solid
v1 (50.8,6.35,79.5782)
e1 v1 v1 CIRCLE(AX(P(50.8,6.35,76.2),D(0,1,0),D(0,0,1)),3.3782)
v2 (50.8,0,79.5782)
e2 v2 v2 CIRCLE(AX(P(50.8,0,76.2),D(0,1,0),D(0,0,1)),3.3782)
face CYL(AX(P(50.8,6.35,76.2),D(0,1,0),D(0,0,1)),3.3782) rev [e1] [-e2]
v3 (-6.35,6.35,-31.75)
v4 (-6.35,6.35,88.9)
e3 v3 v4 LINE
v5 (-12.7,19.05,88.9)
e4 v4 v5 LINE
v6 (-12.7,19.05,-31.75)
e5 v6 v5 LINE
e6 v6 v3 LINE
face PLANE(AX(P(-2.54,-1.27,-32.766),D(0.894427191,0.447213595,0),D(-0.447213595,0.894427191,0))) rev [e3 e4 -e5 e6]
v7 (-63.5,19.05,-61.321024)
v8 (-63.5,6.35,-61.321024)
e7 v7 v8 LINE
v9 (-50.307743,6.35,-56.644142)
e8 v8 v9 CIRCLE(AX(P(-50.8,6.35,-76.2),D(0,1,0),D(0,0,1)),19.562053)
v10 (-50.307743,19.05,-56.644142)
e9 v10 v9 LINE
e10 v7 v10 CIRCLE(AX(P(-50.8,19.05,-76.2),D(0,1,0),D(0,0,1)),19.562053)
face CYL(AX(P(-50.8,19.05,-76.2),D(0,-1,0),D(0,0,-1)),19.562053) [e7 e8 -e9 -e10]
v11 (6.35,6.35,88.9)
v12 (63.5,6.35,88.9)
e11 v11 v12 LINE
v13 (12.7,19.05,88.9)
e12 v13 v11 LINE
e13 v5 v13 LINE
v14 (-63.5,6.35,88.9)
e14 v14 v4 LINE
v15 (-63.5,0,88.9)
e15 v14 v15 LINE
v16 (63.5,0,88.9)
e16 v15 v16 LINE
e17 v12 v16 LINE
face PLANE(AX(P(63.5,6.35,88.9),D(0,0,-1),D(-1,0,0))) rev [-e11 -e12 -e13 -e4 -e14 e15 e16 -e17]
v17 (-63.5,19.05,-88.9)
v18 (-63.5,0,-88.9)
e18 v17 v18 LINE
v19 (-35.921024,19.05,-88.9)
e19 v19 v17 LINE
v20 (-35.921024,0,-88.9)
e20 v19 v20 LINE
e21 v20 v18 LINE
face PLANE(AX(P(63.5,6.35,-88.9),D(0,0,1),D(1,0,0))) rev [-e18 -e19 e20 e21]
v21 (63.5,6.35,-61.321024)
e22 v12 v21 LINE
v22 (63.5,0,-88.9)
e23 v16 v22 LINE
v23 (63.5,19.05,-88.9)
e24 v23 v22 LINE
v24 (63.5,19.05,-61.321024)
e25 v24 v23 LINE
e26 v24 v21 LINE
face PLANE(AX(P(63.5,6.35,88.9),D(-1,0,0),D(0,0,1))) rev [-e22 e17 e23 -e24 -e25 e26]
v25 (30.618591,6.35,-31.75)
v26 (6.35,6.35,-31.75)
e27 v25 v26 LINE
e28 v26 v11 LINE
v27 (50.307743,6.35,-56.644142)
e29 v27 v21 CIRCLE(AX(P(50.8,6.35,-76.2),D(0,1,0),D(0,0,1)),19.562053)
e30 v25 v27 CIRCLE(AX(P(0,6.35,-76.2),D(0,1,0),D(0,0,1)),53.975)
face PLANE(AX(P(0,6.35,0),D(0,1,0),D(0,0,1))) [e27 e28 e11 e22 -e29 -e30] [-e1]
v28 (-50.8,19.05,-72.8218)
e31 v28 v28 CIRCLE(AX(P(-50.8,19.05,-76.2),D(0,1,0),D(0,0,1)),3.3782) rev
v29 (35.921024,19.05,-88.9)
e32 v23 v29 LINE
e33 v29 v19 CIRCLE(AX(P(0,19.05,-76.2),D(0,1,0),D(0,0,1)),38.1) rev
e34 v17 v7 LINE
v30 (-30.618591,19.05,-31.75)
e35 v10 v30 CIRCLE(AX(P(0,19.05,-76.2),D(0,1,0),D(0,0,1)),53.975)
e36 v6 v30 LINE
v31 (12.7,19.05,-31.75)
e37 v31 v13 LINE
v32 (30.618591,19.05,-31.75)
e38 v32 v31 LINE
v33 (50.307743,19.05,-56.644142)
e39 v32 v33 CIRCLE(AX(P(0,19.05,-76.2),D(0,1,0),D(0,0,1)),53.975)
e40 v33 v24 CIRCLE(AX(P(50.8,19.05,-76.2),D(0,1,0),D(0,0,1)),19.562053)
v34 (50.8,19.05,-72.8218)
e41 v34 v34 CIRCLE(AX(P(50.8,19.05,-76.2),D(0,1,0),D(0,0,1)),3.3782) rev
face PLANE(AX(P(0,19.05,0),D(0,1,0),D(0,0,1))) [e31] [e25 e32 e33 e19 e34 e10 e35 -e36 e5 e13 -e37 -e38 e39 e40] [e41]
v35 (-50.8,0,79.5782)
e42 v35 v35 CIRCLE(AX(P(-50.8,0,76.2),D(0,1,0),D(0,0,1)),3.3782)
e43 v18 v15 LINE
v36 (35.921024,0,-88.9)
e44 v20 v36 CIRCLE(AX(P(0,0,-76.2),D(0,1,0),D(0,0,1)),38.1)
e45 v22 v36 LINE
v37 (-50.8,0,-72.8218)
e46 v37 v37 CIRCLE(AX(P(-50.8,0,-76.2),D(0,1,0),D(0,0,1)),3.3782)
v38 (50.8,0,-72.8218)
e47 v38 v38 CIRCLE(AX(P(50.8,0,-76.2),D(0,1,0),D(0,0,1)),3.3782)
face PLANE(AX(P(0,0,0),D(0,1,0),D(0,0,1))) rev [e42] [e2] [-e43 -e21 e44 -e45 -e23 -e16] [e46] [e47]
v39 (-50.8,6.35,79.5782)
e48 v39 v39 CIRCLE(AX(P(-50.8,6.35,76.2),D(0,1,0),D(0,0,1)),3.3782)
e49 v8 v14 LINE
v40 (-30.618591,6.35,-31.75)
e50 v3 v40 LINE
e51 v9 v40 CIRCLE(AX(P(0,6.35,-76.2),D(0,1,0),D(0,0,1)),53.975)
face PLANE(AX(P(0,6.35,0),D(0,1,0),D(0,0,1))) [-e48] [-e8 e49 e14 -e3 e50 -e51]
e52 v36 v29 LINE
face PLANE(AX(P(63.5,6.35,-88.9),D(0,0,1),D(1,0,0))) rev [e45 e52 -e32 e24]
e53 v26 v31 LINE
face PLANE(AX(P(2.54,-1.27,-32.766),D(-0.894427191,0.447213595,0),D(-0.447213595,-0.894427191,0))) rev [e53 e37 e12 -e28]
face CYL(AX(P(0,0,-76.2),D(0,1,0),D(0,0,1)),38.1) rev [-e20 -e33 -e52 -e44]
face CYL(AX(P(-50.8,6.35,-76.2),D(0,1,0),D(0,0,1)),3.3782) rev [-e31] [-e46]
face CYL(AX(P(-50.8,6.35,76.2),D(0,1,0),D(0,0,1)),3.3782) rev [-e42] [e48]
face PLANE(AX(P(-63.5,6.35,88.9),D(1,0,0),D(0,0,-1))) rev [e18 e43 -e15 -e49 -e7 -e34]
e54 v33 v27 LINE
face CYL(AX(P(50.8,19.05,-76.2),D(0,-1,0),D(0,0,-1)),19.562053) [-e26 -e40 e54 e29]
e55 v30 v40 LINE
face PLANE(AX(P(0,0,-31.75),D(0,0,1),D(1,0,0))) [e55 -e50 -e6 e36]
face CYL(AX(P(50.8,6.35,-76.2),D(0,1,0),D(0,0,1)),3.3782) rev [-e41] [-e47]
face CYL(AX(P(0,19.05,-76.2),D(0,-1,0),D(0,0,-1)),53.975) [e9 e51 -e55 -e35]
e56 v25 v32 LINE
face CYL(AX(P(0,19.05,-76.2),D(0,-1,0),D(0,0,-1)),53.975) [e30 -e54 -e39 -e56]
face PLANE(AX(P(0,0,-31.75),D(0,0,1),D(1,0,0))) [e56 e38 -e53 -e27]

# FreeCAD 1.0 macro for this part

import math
import FreeCAD as App
import Part
import Sketcher
from FreeCAD import Vector
Q = App.Units.Quantity

doc = App.newDocument("Part")
body = doc.addObject("PartDesign::Body", "Body")

# Sketch on XZ plane
sketch1 = body.newObject("Sketcher::SketchObject", "Sketch")
sketch1.AttachmentSupport = (doc.getObject("XZ_Plane"), [""])
sketch1.MapMode = "FlatFace"
sketch1.addGeometry([
    Part.LineSegment(Vector(-64, -89, 0), Vector(-64, 89, 0)),
    Part.LineSegment(Vector(-64, 89, 0), Vector(64, 89, 0)),
    Part.LineSegment(Vector(64, 89, 0), Vector(64, -89, 0)),
    Part.LineSegment(Vector(64, -89, 0), Vector(-64, -89, 0)),
], False)
sketch1.addConstraint([
    Sketcher.Constraint("Coincident", 0, 2, 1, 1),
    Sketcher.Constraint("Coincident", 1, 2, 2, 1),
    Sketcher.Constraint("Coincident", 2, 2, 3, 1),
    Sketcher.Constraint("Coincident", 3, 2, 0, 1),
    Sketcher.Constraint("Vertical", 0),
    Sketcher.Constraint("Horizontal", 1),
    Sketcher.Constraint("Vertical", 2),
    Sketcher.Constraint("Horizontal", 3),
    Sketcher.Constraint("Symmetric", 0, 2, 2, 2, -1, 1),
    Sketcher.Constraint("DistanceX", 1, 1, 1, 2, Q("5 in")),
    Sketcher.Constraint("DistanceY", 0, 1, 0, 2, Q("7 in")),
])
pad1 = body.newObject("PartDesign::Pad", "Pad")
pad1.Profile = sketch1
pad1.Length = Q("0.25 in")
pad1.Reversed = True

# Sketch on XZ plane
sketch2 = body.newObject("Sketcher::SketchObject", "Sketch001")
sketch2.AttachmentSupport = (doc.getObject("XZ_Plane"), [""])
sketch2.MapMode = "FlatFace"
sketch2.AttachmentOffset = App.Placement(Vector(0, 0, -0.25 * 25.4), App.Rotation())
sketch2.addGeometry([
    Part.Circle(Vector(-50.8, -76.2, 0), Vector(0, 0, 1), 3.4),
    Part.Circle(Vector(50.8, 76.2, 0), Vector(0, 0, 1), 3.4),
    Part.Circle(Vector(50.8, -76.2, 0), Vector(0, 0, 1), 3.4),
    Part.Circle(Vector(-50.8, 76.2, 0), Vector(0, 0, 1), 3.4),
], False)
sketch2.addConstraint([
    Sketcher.Constraint("Equal", 0, 1),
    Sketcher.Constraint("Equal", 1, 2),
    Sketcher.Constraint("Equal", 2, 3),
    Sketcher.Constraint("Symmetric", 0, 3, 1, 3, -1, 1),
    Sketcher.Constraint("Symmetric", 2, 3, 3, 3, -1, 1),
    Sketcher.Constraint("Symmetric", 0, 3, 2, 3, -2),
    Sketcher.Constraint("Diameter", 0, Q("0.266 in")),
    Sketcher.Constraint("DistanceX", 0, 3, -1, 1, Q("2 in")),
    Sketcher.Constraint("DistanceY", 0, 3, -1, 1, Q("3 in")),
])
doc.recompute()
hole = body.newObject("PartDesign::Hole", "Hole")
hole.Profile = sketch2
hole.ThreadType = "None"
hole.Diameter = Q("0.266 in")
hole.DepthType = "Dimension"
hole.Depth = Q("0.65 in")
hole.DrillPoint = "Angled"
hole.DrillPointAngle = 118
hole.Reversed = True

# Sketch on XZ plane
sketch3 = body.newObject("Sketcher::SketchObject", "Sketch002")
sketch3.AttachmentSupport = (doc.getObject("XZ_Plane"), [""])
sketch3.MapMode = "FlatFace"
sketch3.AttachmentOffset = App.Placement(Vector(0, 0, -0.25 * 25.4), App.Rotation())
sketch3.addGeometry(Part.Circle(Vector(0, -76, 0), Vector(0, 0, 1), 38), False)
sketch3.addConstraint([
    Sketcher.Constraint("PointOnObject", 0, 3, -2),
    Sketcher.Constraint("Diameter", 0, Q("3 in")),
    Sketcher.Constraint("DistanceY", 0, 3, -1, 1, Q("3 in")),
])
pocket1 = body.newObject("PartDesign::Pocket", "Pocket")
pocket1.Profile = sketch3
pocket1.Length = Q("0.25 in")
pocket1.Reversed = True

# Sketch on XZ plane
sketch4 = body.newObject("Sketcher::SketchObject", "Sketch003")
sketch4.AttachmentSupport = (doc.getObject("XZ_Plane"), [""])
sketch4.MapMode = "FlatFace"
sketch4.AttachmentOffset = App.Placement(Vector(0, 0, -0.25 * 25.4), App.Rotation())
sketch4.addGeometry([
    Part.LineSegment(Vector(-35.9, -88.9, 0), Vector(-63.5, -88.9, 0)),  # 0
    Part.LineSegment(Vector(-63.5, -88.9, 0), Vector(-63.5, -61.3, 0)),  # 1
    Part.ArcOfCircle(Part.Circle(Vector(-50.8, -76.2, 0), Vector(0, 0, 1), 19.6), math.radians(89), math.radians(130)),  # 2
    Part.ArcOfCircle(Part.Circle(Vector(0, -76.2, 0), Vector(0, 0, 1), 54), math.radians(21), math.radians(159)),  # 3
    Part.ArcOfCircle(Part.Circle(Vector(50.8, -76.2, 0), Vector(0, 0, 1), 19.6), math.radians(50), math.radians(91)),  # 4
    Part.LineSegment(Vector(63.5, -61.3, 0), Vector(63.5, -88.9, 0)),  # 5
    Part.LineSegment(Vector(63.5, -88.9, 0), Vector(35.9, -88.9, 0)),  # 6
    Part.ArcOfCircle(Part.Circle(Vector(0, -76.2, 0), Vector(0, 0, 1), 38.1), math.radians(-19), math.radians(199)),  # 7
    Part.Circle(Vector(-50.8, -76.2, 0), Vector(0, 0, 1), 3.4),  # 8
    Part.Circle(Vector(50.8, -76.2, 0), Vector(0, 0, 1), 3.4),  # 9
], False)
sketch4.addConstraint([
    Sketcher.Constraint("Coincident", 0, 2, 1, 1),
    Sketcher.Constraint("Coincident", 1, 2, 2, 2),
    Sketcher.Constraint("Coincident", 2, 1, 3, 2),
    Sketcher.Constraint("Coincident", 3, 1, 4, 2),
    Sketcher.Constraint("Coincident", 4, 1, 5, 1),
    Sketcher.Constraint("Coincident", 5, 2, 6, 1),
    Sketcher.Constraint("Coincident", 6, 2, 7, 1),
    Sketcher.Constraint("Coincident", 7, 2, 0, 1),
    Sketcher.Constraint("Horizontal", 0),
    Sketcher.Constraint("Vertical", 1),
    Sketcher.Constraint("Vertical", 5),
    Sketcher.Constraint("Horizontal", 6),
    Sketcher.Constraint("Coincident", 7, 3, 3, 3),
    Sketcher.Constraint("Coincident", 8, 3, 2, 3),
    Sketcher.Constraint("Coincident", 9, 3, 4, 3),
    Sketcher.Constraint("Equal", 2, 4),
    Sketcher.Constraint("Equal", 8, 9),
    Sketcher.Constraint("Symmetric", 2, 3, 4, 3, -2),
    Sketcher.Constraint("Symmetric", 0, 2, 5, 2, -2),
    Sketcher.Constraint("PointOnObject", 3, 3, -2),
    Sketcher.Constraint("Horizontal", 2, 3, 3, 3),
    Sketcher.Constraint("Equal", 6, 1),
    Sketcher.Constraint("Radius", 7, Q("1.5 in")),
    Sketcher.Constraint("Diameter", 8, Q("0.266 in")),
    Sketcher.Constraint("DistanceX", 2, 3, -1, 1, Q("2 in")),
    Sketcher.Constraint("DistanceY", 2, 3, -1, 1, Q("3 in")),
    Sketcher.Constraint("Radius", 3, Q("2.125 in")),
    Sketcher.Constraint("DistanceX", 0, 2, -1, 1, Q("2.5 in")),
    Sketcher.Constraint("DistanceY", 0, 2, -1, 1, Q("3.5 in")),
])
pad2 = body.newObject("PartDesign::Pad", "Pad001")
pad2.Profile = sketch4
pad2.Length = Q("0.5 in")
pad2.Reversed = True

# Sketch on XY plane
sketch5 = body.newObject("Sketcher::SketchObject", "Sketch004")
sketch5.AttachmentSupport = (doc.getObject("XY_Plane"), [""])
sketch5.MapMode = "FlatFace"
sketch5.AttachmentOffset = App.Placement(Vector(0, 0, 3.5 * 25.4), App.Rotation())
sketch5.addGeometry([
    Part.LineSegment(Vector(-13, 19, 0), Vector(-6, 6, 0)),
    Part.LineSegment(Vector(-6, 6, 0), Vector(6, 6, 0)),
    Part.LineSegment(Vector(6, 6, 0), Vector(13, 19, 0)),
    Part.LineSegment(Vector(13, 19, 0), Vector(-13, 19, 0)),
], False)
sketch5.addConstraint([
    Sketcher.Constraint("Coincident", 0, 2, 1, 1),
    Sketcher.Constraint("Coincident", 1, 2, 2, 1),
    Sketcher.Constraint("Coincident", 2, 2, 3, 1),
    Sketcher.Constraint("Coincident", 3, 2, 0, 1),
    Sketcher.Constraint("Horizontal", 1),
    Sketcher.Constraint("Horizontal", 3),
    Sketcher.Constraint("Equal", 0, 2),
    Sketcher.Constraint("DistanceX", 3, 2, 3, 1, Q("1 in")),
    Sketcher.Constraint("DistanceX", 1, 1, 1, 2, Q("0.5 in")),
    Sketcher.Constraint("DistanceX", -1, 1, 2, 2, Q("0.5 in")),
    Sketcher.Constraint("DistanceY", 1, 2, 2, 2, Q("0.5 in")),
    Sketcher.Constraint("DistanceY", -1, 1, 0, 2, Q("0.25 in")),
])
pad3 = body.newObject("PartDesign::Pad", "Pad002")
pad3.Profile = sketch5
pad3.Length = Q("4.79 in")
pad3.Reversed = True

# Sketch on XY plane
sketch6 = body.newObject("Sketcher::SketchObject", "Sketch005")
sketch6.AttachmentSupport = (doc.getObject("XY_Plane"), [""])
sketch6.MapMode = "FlatFace"
sketch6.AttachmentOffset = App.Placement(Vector(0, 0, 3.5 * 25.4), App.Rotation())
sketch6.addGeometry([
    Part.LineSegment(Vector(-50, 19, 0), Vector(-50, 6, 0)),  # 0
    Part.LineSegment(Vector(-50, 6, 0), Vector(-6, 6, 0)),  # 1
    Part.LineSegment(Vector(-6, 6, 0), Vector(-13, 19, 0)),  # 2
    Part.LineSegment(Vector(-13, 19, 0), Vector(-50, 19, 0)),  # 3
    Part.LineSegment(Vector(6, 6, 0), Vector(50, 6, 0)),  # 4
    Part.LineSegment(Vector(50, 6, 0), Vector(50, 19, 0)),  # 5
    Part.LineSegment(Vector(50, 19, 0), Vector(13, 19, 0)),  # 6
    Part.LineSegment(Vector(13, 19, 0), Vector(6, 6, 0)),  # 7
], False)
sketch6.addConstraint([
    Sketcher.Constraint("Coincident", 0, 2, 1, 1),
    Sketcher.Constraint("Coincident", 1, 2, 2, 1),
    Sketcher.Constraint("Coincident", 2, 2, 3, 1),
    Sketcher.Constraint("Coincident", 3, 2, 0, 1),
    Sketcher.Constraint("Coincident", 4, 2, 5, 1),
    Sketcher.Constraint("Coincident", 5, 2, 6, 1),
    Sketcher.Constraint("Coincident", 6, 2, 7, 1),
    Sketcher.Constraint("Coincident", 7, 2, 4, 1),
    Sketcher.Constraint("Vertical", 0),
    Sketcher.Constraint("Horizontal", 1),
    Sketcher.Constraint("Horizontal", 3),
    Sketcher.Constraint("Horizontal", 4),
    Sketcher.Constraint("Vertical", 5),
    Sketcher.Constraint("Horizontal", 6),
    Sketcher.Constraint("Symmetric", 0, 2, 4, 2, -2),
    Sketcher.Constraint("Symmetric", 2, 2, 6, 2, -2),
    Sketcher.Constraint("Equal", 1, 4),
    Sketcher.Constraint("DistanceY", 0, 2, 0, 1, Q("0.5 in")),
    Sketcher.Constraint("DistanceX", 2, 2, 6, 2, Q("1 in")),
    Sketcher.Constraint("DistanceX", 1, 2, 7, 2, Q("0.5 in")),
    Sketcher.Constraint("DistanceY", -1, 1, 0, 2, Q("0.25 in")),
    Sketcher.Constraint("DistanceX", 1, 1, 1, 2, Q("43.957743 mm")),
])
pocket2 = body.newObject("PartDesign::Pocket", "Pocket001")
pocket2.Profile = sketch6
pocket2.Length = Q("4.75 in")

doc.recompute()
